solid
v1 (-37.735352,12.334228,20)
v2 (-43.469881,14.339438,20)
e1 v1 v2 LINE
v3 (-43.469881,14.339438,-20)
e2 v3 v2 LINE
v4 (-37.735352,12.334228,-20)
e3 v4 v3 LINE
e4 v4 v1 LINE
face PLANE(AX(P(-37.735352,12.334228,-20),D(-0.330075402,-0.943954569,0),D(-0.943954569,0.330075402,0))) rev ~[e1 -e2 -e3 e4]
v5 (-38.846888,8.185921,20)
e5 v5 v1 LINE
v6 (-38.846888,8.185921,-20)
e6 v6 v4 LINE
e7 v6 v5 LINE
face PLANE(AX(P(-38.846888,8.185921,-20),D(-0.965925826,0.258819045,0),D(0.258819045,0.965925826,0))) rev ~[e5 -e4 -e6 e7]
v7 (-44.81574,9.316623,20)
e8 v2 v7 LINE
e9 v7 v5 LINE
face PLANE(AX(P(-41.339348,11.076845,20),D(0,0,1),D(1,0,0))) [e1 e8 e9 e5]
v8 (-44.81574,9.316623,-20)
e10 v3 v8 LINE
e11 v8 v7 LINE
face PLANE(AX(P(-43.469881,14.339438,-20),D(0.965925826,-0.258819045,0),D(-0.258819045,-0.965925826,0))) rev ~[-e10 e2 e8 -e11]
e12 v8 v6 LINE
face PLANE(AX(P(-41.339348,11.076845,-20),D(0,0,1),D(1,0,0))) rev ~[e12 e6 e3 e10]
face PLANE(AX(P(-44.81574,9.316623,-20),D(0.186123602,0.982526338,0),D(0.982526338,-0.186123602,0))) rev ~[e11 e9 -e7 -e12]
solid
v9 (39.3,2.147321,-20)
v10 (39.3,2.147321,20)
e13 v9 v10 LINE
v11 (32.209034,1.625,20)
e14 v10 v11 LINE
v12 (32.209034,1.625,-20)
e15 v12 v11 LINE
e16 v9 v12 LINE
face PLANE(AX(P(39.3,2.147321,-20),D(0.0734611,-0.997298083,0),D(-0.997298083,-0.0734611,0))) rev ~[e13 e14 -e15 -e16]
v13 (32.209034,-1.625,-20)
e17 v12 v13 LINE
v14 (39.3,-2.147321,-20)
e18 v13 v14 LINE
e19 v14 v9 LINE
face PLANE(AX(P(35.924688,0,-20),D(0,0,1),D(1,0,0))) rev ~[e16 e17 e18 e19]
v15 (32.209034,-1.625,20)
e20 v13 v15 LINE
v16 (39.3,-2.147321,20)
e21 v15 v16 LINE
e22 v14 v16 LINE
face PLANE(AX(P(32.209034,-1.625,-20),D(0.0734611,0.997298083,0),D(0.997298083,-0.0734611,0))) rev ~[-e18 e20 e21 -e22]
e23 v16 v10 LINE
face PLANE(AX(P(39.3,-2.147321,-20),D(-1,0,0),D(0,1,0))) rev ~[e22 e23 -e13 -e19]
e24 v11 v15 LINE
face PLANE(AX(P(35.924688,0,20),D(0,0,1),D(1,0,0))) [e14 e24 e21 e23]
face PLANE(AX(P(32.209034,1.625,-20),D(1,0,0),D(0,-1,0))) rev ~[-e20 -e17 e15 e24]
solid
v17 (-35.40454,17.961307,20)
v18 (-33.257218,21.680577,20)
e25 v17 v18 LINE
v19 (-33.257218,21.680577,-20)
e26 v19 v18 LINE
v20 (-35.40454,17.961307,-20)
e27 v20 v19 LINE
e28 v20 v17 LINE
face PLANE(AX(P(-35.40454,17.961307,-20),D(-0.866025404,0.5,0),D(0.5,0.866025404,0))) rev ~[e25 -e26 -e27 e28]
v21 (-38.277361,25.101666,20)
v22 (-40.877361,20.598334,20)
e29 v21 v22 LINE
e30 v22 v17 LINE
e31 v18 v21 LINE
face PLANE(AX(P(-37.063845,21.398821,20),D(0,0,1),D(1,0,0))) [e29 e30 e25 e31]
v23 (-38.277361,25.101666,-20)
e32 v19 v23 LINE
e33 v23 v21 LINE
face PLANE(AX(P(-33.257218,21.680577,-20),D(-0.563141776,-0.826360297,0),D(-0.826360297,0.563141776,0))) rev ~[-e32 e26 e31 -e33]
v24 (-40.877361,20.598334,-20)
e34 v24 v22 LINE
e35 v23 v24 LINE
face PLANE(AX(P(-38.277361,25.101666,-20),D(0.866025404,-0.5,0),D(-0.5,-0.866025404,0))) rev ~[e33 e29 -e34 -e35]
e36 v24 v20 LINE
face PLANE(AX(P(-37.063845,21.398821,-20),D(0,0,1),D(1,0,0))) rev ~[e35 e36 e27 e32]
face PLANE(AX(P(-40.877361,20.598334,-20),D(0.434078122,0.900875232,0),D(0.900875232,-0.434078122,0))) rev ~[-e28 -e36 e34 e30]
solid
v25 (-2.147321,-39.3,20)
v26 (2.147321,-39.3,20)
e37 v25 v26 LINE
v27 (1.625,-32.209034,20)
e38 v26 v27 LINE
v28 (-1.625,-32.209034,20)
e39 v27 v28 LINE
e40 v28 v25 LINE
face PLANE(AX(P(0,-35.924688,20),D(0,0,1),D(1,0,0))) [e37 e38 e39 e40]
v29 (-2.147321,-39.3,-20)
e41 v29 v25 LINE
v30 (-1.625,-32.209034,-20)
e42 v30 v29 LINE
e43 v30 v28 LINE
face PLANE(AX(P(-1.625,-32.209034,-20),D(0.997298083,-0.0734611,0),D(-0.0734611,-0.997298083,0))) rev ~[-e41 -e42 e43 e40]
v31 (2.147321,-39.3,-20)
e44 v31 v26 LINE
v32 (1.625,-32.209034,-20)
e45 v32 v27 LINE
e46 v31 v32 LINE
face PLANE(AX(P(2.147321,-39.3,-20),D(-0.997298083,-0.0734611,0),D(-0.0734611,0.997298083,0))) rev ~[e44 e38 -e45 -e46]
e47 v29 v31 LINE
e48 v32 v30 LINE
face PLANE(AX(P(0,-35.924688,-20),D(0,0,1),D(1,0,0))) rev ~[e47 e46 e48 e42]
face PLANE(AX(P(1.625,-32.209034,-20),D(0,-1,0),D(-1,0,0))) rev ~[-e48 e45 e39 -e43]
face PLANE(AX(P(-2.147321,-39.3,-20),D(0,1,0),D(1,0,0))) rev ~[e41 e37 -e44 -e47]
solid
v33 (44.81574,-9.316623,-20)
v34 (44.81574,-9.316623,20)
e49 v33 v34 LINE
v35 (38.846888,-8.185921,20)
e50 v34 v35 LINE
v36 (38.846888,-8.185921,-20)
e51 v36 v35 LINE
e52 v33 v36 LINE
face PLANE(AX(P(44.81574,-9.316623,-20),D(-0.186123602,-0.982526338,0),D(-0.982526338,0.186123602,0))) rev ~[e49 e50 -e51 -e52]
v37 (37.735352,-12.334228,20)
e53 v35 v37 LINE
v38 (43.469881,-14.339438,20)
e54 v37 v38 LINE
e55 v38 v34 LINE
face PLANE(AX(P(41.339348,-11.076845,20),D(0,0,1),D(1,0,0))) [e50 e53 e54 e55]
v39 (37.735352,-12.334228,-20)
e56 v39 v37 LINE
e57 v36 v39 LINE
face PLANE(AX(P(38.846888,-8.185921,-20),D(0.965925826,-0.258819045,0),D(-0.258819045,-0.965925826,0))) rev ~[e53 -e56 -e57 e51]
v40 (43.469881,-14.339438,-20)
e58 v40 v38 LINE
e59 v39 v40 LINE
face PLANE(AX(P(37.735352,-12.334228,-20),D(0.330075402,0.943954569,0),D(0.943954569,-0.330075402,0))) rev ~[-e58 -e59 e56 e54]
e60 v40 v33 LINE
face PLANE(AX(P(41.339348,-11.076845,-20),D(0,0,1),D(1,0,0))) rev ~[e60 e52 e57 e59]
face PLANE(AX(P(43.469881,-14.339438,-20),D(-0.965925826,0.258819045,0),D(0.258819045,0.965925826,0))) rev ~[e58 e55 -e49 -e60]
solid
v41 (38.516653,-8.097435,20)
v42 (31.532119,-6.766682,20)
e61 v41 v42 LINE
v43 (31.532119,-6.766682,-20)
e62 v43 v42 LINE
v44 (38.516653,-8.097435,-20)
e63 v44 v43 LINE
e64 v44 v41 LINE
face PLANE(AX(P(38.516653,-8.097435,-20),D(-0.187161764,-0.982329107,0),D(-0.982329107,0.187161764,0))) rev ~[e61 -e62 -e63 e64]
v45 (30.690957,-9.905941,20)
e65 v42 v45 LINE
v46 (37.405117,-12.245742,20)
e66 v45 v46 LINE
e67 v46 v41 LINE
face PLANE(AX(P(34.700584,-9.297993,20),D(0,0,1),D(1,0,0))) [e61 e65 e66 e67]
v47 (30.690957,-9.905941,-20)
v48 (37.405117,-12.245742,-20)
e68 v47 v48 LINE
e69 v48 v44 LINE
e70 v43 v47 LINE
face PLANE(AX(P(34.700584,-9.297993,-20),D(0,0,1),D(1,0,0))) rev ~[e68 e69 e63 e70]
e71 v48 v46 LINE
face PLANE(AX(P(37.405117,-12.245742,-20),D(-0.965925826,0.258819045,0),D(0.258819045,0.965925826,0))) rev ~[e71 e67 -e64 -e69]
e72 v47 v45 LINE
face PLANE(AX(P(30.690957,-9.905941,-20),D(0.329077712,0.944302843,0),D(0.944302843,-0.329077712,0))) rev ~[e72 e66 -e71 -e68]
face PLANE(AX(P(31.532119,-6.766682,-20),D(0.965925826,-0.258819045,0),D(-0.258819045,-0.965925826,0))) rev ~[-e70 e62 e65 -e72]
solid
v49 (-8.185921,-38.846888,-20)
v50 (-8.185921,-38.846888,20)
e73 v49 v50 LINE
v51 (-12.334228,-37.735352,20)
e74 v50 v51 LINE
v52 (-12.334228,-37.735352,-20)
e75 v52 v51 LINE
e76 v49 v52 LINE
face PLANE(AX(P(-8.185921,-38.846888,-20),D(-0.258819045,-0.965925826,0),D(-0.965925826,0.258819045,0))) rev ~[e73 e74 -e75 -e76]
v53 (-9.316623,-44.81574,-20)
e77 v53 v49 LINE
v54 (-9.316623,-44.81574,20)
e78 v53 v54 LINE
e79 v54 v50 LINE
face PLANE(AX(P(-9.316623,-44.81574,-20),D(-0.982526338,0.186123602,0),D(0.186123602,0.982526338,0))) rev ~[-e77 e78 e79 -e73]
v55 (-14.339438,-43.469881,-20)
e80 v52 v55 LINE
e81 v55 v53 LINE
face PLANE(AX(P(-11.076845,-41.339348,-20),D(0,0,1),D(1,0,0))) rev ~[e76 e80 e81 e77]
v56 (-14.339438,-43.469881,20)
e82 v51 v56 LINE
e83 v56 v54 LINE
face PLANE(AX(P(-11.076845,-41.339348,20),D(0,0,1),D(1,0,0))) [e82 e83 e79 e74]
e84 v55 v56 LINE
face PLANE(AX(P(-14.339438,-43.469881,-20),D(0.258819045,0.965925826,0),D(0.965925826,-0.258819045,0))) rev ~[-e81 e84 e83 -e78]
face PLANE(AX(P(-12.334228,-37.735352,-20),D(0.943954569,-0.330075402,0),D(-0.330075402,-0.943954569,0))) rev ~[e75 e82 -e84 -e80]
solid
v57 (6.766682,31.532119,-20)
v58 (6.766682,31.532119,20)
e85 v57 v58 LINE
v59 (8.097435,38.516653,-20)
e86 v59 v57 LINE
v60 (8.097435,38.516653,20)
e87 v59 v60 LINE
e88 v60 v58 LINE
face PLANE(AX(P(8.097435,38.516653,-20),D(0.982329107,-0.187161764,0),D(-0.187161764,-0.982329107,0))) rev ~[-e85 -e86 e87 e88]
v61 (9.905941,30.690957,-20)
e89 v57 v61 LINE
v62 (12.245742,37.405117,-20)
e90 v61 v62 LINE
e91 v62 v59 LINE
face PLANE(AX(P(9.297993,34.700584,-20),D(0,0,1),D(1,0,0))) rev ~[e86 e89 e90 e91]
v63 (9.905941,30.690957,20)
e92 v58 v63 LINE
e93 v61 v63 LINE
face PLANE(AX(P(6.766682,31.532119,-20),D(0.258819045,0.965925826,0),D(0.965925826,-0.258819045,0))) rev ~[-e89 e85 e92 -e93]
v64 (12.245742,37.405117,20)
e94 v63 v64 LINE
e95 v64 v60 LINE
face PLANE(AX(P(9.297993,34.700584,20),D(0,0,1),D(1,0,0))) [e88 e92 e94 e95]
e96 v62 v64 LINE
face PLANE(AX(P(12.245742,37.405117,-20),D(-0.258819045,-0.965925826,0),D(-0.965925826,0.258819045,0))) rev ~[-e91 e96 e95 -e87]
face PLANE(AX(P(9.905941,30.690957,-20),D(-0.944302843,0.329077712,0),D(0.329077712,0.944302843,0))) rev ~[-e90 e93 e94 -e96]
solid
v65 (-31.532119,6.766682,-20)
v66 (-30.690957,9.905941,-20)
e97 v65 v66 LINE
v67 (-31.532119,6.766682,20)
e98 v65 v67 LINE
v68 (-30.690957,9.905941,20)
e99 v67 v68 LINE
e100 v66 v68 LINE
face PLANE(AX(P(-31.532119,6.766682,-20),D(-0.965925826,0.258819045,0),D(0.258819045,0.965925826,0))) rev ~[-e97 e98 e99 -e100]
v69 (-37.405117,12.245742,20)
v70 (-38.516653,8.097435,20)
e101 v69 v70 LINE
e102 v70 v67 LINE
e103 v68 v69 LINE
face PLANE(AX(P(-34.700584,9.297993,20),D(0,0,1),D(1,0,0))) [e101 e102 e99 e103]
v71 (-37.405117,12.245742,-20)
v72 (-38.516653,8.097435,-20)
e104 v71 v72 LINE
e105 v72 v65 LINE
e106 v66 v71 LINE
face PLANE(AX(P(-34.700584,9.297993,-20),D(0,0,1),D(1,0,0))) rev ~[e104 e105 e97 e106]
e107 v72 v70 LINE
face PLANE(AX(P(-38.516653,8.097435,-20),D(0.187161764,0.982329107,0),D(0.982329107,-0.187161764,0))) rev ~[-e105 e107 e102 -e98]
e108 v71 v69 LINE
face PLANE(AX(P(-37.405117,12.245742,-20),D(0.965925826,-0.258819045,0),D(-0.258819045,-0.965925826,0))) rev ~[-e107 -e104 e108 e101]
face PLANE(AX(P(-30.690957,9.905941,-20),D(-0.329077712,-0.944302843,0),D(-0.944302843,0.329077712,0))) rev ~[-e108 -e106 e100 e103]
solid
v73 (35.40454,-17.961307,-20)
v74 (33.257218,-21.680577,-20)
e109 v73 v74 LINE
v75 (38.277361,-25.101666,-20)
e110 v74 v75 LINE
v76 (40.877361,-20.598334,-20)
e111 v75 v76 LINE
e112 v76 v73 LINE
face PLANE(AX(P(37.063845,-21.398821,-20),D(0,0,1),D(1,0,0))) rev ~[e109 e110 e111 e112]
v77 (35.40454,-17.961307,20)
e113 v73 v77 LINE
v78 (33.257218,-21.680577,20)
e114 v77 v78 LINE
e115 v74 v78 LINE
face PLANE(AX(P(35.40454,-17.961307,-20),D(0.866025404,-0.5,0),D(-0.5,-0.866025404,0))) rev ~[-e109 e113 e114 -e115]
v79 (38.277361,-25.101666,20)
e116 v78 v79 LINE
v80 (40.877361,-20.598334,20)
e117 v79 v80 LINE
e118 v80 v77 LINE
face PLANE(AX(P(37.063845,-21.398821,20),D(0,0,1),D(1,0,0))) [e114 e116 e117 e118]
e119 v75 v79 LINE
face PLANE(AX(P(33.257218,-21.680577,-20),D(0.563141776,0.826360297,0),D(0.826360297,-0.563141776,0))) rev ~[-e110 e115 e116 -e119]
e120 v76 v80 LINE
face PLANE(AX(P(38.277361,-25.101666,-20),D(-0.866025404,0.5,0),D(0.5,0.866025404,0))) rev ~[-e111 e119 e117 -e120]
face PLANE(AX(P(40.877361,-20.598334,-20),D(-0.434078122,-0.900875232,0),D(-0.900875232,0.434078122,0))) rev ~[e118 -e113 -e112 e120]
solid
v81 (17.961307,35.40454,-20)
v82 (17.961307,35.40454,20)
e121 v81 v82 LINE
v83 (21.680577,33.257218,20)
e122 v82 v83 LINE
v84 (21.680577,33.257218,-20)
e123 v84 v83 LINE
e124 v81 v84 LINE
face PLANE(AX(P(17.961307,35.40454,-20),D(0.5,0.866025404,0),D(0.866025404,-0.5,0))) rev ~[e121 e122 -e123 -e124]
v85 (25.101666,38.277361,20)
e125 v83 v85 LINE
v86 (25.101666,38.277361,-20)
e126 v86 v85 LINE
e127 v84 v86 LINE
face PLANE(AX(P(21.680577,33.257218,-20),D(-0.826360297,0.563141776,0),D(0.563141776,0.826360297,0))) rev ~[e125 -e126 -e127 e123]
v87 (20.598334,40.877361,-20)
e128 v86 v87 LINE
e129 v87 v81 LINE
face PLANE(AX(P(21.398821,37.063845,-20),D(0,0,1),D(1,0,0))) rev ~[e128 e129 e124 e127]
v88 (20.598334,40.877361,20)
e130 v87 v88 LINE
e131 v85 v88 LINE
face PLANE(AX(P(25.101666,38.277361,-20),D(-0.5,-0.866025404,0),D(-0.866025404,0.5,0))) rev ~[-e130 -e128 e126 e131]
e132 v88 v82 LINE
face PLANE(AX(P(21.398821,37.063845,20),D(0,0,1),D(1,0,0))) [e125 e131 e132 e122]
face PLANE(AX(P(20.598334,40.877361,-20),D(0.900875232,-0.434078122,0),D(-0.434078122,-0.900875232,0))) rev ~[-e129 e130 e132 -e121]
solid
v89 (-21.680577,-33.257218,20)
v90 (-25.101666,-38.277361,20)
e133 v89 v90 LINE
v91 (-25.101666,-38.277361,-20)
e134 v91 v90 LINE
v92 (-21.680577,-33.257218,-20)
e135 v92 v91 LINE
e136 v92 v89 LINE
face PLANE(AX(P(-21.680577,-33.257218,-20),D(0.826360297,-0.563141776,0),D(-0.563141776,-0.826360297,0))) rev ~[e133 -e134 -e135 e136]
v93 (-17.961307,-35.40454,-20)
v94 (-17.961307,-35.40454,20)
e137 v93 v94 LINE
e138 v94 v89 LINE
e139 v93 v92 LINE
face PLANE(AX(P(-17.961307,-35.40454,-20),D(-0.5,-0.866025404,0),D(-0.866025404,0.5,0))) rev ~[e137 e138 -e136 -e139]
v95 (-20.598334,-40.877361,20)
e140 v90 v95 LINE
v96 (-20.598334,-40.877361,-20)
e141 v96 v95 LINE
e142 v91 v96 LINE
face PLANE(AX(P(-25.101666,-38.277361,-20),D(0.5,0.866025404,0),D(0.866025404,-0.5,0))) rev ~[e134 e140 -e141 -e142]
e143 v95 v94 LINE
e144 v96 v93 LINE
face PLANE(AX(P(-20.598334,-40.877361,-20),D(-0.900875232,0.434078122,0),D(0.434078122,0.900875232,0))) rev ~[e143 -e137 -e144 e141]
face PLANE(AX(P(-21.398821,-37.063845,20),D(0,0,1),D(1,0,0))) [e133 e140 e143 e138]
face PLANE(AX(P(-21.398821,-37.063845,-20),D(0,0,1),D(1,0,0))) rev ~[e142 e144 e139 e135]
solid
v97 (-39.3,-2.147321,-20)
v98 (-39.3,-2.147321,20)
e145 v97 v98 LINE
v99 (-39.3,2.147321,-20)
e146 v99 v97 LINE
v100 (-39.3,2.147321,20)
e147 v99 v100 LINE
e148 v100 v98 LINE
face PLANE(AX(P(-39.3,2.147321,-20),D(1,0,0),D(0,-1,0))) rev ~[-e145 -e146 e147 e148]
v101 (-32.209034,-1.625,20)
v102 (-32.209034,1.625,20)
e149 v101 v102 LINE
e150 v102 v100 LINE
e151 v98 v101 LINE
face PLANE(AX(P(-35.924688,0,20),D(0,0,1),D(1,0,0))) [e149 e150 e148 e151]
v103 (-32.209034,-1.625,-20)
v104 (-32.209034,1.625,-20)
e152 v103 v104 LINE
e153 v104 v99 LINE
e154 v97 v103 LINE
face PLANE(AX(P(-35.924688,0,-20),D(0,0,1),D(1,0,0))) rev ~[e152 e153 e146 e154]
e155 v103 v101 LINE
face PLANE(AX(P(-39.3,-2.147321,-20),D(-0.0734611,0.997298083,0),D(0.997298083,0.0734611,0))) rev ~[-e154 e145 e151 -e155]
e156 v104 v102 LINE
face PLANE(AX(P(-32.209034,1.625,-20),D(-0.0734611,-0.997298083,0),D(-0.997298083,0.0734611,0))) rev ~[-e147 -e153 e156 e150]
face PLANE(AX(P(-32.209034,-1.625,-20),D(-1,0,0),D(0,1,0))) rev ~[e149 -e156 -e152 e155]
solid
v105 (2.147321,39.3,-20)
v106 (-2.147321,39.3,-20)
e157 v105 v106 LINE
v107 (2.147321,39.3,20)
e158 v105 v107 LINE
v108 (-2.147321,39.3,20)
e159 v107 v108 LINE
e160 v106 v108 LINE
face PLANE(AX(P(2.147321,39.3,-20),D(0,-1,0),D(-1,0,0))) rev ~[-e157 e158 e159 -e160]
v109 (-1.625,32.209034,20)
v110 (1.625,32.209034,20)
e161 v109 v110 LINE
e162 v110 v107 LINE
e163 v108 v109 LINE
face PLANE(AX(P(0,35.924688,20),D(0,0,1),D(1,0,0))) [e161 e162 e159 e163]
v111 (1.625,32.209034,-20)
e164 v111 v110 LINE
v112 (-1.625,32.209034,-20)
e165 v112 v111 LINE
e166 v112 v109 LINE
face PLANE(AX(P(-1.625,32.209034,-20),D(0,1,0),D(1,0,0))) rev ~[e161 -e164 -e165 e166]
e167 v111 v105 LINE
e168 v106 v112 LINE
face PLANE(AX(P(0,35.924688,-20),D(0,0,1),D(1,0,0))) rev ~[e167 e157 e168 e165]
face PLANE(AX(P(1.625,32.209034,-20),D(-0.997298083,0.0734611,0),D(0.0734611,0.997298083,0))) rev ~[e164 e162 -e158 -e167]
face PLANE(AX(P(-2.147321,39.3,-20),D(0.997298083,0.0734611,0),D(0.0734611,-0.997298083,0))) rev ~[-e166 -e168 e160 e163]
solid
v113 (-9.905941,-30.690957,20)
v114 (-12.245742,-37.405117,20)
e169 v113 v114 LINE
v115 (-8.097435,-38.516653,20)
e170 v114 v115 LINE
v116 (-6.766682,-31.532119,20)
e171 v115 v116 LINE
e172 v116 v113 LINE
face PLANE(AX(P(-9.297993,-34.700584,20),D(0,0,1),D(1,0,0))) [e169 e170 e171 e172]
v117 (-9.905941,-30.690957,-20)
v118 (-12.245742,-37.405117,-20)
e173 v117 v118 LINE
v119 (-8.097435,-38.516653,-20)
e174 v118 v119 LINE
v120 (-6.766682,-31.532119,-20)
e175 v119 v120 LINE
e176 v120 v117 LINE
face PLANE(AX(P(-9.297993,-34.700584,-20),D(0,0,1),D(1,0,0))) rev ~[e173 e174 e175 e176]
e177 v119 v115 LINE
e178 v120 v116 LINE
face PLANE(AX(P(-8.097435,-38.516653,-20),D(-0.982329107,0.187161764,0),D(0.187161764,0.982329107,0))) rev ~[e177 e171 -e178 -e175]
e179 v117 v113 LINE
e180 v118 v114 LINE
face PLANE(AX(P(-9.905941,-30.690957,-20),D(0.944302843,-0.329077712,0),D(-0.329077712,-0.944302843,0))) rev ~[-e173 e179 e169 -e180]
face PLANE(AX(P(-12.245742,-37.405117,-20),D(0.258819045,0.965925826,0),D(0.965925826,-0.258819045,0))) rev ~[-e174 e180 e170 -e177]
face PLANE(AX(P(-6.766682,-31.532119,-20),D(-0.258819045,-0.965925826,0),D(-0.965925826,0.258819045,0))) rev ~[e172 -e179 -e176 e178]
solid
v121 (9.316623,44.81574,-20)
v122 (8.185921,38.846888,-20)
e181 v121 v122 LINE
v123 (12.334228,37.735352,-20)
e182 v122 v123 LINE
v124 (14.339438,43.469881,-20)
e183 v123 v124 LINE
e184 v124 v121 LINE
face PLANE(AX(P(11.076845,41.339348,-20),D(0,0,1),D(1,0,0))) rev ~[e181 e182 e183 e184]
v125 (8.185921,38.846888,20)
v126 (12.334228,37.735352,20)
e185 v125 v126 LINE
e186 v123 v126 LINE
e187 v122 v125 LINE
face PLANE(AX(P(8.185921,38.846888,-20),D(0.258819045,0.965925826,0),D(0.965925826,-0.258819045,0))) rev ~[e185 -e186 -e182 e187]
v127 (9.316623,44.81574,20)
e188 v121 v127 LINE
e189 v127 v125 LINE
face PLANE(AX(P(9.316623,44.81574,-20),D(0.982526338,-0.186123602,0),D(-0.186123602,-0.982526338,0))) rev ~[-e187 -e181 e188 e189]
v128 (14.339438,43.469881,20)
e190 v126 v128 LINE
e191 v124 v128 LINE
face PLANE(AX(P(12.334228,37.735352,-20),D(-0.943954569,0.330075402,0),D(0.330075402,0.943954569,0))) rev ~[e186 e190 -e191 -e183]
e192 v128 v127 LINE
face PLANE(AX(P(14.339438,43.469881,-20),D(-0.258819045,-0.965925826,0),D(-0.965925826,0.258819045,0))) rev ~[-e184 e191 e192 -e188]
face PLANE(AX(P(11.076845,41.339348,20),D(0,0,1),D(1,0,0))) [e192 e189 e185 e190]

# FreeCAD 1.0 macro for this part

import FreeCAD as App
import Part
import Sketcher

V = App.Vector
Q = App.Units.Quantity

doc = App.newDocument("Part")
body = doc.addObject("PartDesign::Body", "Body")

# Sketch on XY plane
sketch1 = doc.addObject("Sketcher::SketchObject", "Sketch")
body.addObject(sketch1)
sketch1.AttachmentSupport = (doc.XY_Plane, [""])
sketch1.MapMode = "FlatFace"
sketch1.AttachmentOffset = App.Placement(V(0, 0, -20), App.Rotation())
sketch1.addGeometry([
    Part.LineSegment(V(32.2, -1.6, 0), V(39.3, -2.1, 0)),
    Part.LineSegment(V(39.3, -2.1, 0), V(39.3, 2.1, 0)),
    Part.LineSegment(V(39.3, 2.1, 0), V(32.2, 1.6, 0)),
    Part.LineSegment(V(32.2, 1.6, 0), V(32.2, -1.6, 0)),
], False)
sketch1.addConstraint([
    Sketcher.Constraint("Coincident", 0, 2, 1, 1),
    Sketcher.Constraint("Coincident", 1, 2, 2, 1),
    Sketcher.Constraint("Coincident", 2, 2, 3, 1),
    Sketcher.Constraint("Coincident", 3, 2, 0, 1),
    Sketcher.Constraint("Vertical", 1),
    Sketcher.Constraint("Vertical", 3),
    Sketcher.Constraint("Equal", 0, 2),
    Sketcher.Constraint("DistanceY", 3, 2, 3, 1, Q("3.25 mm")),
    Sketcher.Constraint("DistanceX", -1, 1, 0, 2, Q("39.3 mm")),
    Sketcher.Constraint("DistanceY", -1, 1, 2, 2, Q("1.625 mm")),
    Sketcher.Constraint("DistanceY", 1, 1, 1, 2, Q("4.294643 mm")),
    Sketcher.Constraint("Distance", 0, Q("7.110177 mm")),
])
pad1 = doc.addObject("PartDesign::Pad", "Pad")
body.addObject(pad1)
pad1.Profile = sketch1
pad1.Length = 40
body2 = doc.addObject("PartDesign::Body", "Body001")

# Sketch on XY plane
sketch2 = doc.addObject("Sketcher::SketchObject", "Sketch001")
body2.addObject(sketch2)
sketch2.AttachmentSupport = (doc.getObject("XY_Plane001"), [""])
sketch2.MapMode = "FlatFace"
sketch2.AttachmentOffset = App.Placement(V(0, 0, -20), App.Rotation())
sketch2.addGeometry([
    Part.LineSegment(V(21.7, 33.3, 0), V(25.1, 38.3, 0)),
    Part.LineSegment(V(25.1, 38.3, 0), V(20.6, 40.9, 0)),
    Part.LineSegment(V(20.6, 40.9, 0), V(18, 35.4, 0)),
    Part.LineSegment(V(18, 35.4, 0), V(21.7, 33.3, 0)),
], False)
sketch2.addConstraint([
    Sketcher.Constraint("Coincident", 0, 2, 1, 1),
    Sketcher.Constraint("Coincident", 1, 2, 2, 1),
    Sketcher.Constraint("Coincident", 2, 2, 3, 1),
    Sketcher.Constraint("Coincident", 3, 2, 0, 1),
    Sketcher.Constraint("Parallel", 1, 3),
    Sketcher.Constraint("Equal", 0, 2),
    Sketcher.Constraint("Angle", 1, Q("150 deg")),
    Sketcher.Constraint("Distance", 1, Q("5.2 mm")),
    Sketcher.Constraint("DistanceY", -1, 1, 0, 2, Q("38.277361 mm")),
    Sketcher.Constraint("DistanceY", -1, 1, 2, 2, Q("35.40454 mm")),
    Sketcher.Constraint("DistanceY", -1, 1, 3, 2, Q("33.257218 mm")),
    Sketcher.Constraint("DistanceX", -1, 1, 0, 2, Q("25.101666 mm")),
])
pad2 = doc.addObject("PartDesign::Pad", "Pad001")
body2.addObject(pad2)
pad2.Profile = sketch2
pad2.Length = 40
body3 = doc.addObject("PartDesign::Body", "Body002")

# Sketch on XY plane
sketch3 = doc.addObject("Sketcher::SketchObject", "Sketch002")
body3.addObject(sketch3)
sketch3.AttachmentSupport = (doc.getObject("XY_Plane002"), [""])
sketch3.MapMode = "FlatFace"
sketch3.AttachmentOffset = App.Placement(V(0, 0, -20), App.Rotation())
sketch3.addGeometry([
    Part.LineSegment(V(9.9, 30.7, 0), V(12.2, 37.4, 0)),
    Part.LineSegment(V(12.2, 37.4, 0), V(8.1, 38.5, 0)),
    Part.LineSegment(V(8.1, 38.5, 0), V(6.8, 31.5, 0)),
    Part.LineSegment(V(6.8, 31.5, 0), V(9.9, 30.7, 0)),
], False)
sketch3.addConstraint([
    Sketcher.Constraint("Coincident", 0, 2, 1, 1),
    Sketcher.Constraint("Coincident", 1, 2, 2, 1),
    Sketcher.Constraint("Coincident", 2, 2, 3, 1),
    Sketcher.Constraint("Coincident", 3, 2, 0, 1),
    Sketcher.Constraint("Parallel", 1, 3),
    Sketcher.Constraint("Equal", 0, 2),
    Sketcher.Constraint("Angle", 1, Q("165 deg")),
    Sketcher.Constraint("Distance", 3, Q("3.25 mm")),
    Sketcher.Constraint("DistanceY", 2, 2, 0, 2, Q("5.872999 mm")),
    Sketcher.Constraint("DistanceX", 3, 2, 0, 2, Q("2.339801 mm")),
    Sketcher.Constraint("DistanceX", -1, 1, 0, 2, Q("12.245742 mm")),
    Sketcher.Constraint("DistanceY", -1, 1, 2, 2, Q("31.532119 mm")),
])
pad3 = doc.addObject("PartDesign::Pad", "Pad002")
body3.addObject(pad3)
pad3.Profile = sketch3
pad3.Length = 40
body4 = doc.addObject("PartDesign::Body", "Body003")

# Sketch on XY plane
sketch4 = doc.addObject("Sketcher::SketchObject", "Sketch003")
body4.addObject(sketch4)
sketch4.AttachmentSupport = (doc.getObject("XY_Plane003"), [""])
sketch4.MapMode = "FlatFace"
sketch4.AttachmentOffset = App.Placement(V(0, 0, -20), App.Rotation())
sketch4.addGeometry([
    Part.LineSegment(V(12.3, 37.7, 0), V(14.3, 43.5, 0)),
    Part.LineSegment(V(14.3, 43.5, 0), V(9.3, 44.8, 0)),
    Part.LineSegment(V(9.3, 44.8, 0), V(8.2, 38.8, 0)),
    Part.LineSegment(V(8.2, 38.8, 0), V(12.3, 37.7, 0)),
], False)
sketch4.addConstraint([
    Sketcher.Constraint("Coincident", 0, 2, 1, 1),
    Sketcher.Constraint("Coincident", 1, 2, 2, 1),
    Sketcher.Constraint("Coincident", 2, 2, 3, 1),
    Sketcher.Constraint("Coincident", 3, 2, 0, 1),
    Sketcher.Constraint("Parallel", 1, 3),
    Sketcher.Constraint("Equal", 0, 2),
    Sketcher.Constraint("Angle", 1, Q("165 deg")),
    Sketcher.Constraint("Distance", 1, Q("5.2 mm")),
    Sketcher.Constraint("DistanceX", 2, 2, 1, 2, Q("1.130702 mm")),
    Sketcher.Constraint("DistanceY", -1, 1, 0, 2, Q("43.469881 mm")),
    Sketcher.Constraint("DistanceX", -1, 1, 2, 2, Q("8.185921 mm")),
    Sketcher.Constraint("DistanceX", 3, 2, 0, 2, Q("2.00521 mm")),
])
pad4 = doc.addObject("PartDesign::Pad", "Pad003")
body4.addObject(pad4)
pad4.Profile = sketch4
pad4.Length = 40
body5 = doc.addObject("PartDesign::Body", "Body004")

# Sketch on XY plane
sketch5 = doc.addObject("Sketcher::SketchObject", "Sketch004")
body5.addObject(sketch5)
sketch5.AttachmentSupport = (doc.getObject("XY_Plane004"), [""])
sketch5.MapMode = "FlatFace"
sketch5.AttachmentOffset = App.Placement(V(0, 0, -20), App.Rotation())
sketch5.addGeometry([
    Part.LineSegment(V(1.6, 32.2, 0), V(2.1, 39.3, 0)),
    Part.LineSegment(V(2.1, 39.3, 0), V(-2.1, 39.3, 0)),
    Part.LineSegment(V(-2.1, 39.3, 0), V(-1.6, 32.2, 0)),
    Part.LineSegment(V(-1.6, 32.2, 0), V(1.6, 32.2, 0)),
], False)
sketch5.addConstraint([
    Sketcher.Constraint("Coincident", 0, 2, 1, 1),
    Sketcher.Constraint("Coincident", 1, 2, 2, 1),
    Sketcher.Constraint("Coincident", 2, 2, 3, 1),
    Sketcher.Constraint("Coincident", 3, 2, 0, 1),
    Sketcher.Constraint("Horizontal", 1),
    Sketcher.Constraint("Horizontal", 3),
    Sketcher.Constraint("Equal", 0, 2),
    Sketcher.Constraint("DistanceX", 3, 1, 3, 2, Q("3.25 mm")),
    Sketcher.Constraint("DistanceY", -1, 1, 0, 2, Q("39.3 mm")),
    Sketcher.Constraint("DistanceX", 2, 2, -1, 1, Q("1.625 mm")),
    Sketcher.Constraint("DistanceX", 1, 2, 1, 1, Q("4.294643 mm")),
    Sketcher.Constraint("Distance", 0, Q("7.110177 mm")),
])
pad5 = doc.addObject("PartDesign::Pad", "Pad004")
body5.addObject(pad5)
pad5.Profile = sketch5
pad5.Length = 40
body6 = doc.addObject("PartDesign::Body", "Body005")

# Sketch on XY plane
sketch6 = doc.addObject("Sketcher::SketchObject", "Sketch005")
body6.addObject(sketch6)
sketch6.AttachmentSupport = (doc.getObject("XY_Plane005"), [""])
sketch6.MapMode = "FlatFace"
sketch6.AttachmentOffset = App.Placement(V(0, 0, -20), App.Rotation())
sketch6.addGeometry([
    Part.LineSegment(V(-33.3, 21.7, 0), V(-38.3, 25.1, 0)),
    Part.LineSegment(V(-38.3, 25.1, 0), V(-40.9, 20.6, 0)),
    Part.LineSegment(V(-40.9, 20.6, 0), V(-35.4, 18, 0)),
    Part.LineSegment(V(-35.4, 18, 0), V(-33.3, 21.7, 0)),
], False)
sketch6.addConstraint([
    Sketcher.Constraint("Coincident", 0, 2, 1, 1),
    Sketcher.Constraint("Coincident", 1, 2, 2, 1),
    Sketcher.Constraint("Coincident", 2, 2, 3, 1),
    Sketcher.Constraint("Coincident", 3, 2, 0, 1),
    Sketcher.Constraint("Parallel", 1, 3),
    Sketcher.Constraint("Equal", 0, 2),
    Sketcher.Constraint("Angle", 1, Q("-120 deg")),
    Sketcher.Constraint("Distance", 1, Q("5.2 mm")),
    Sketcher.Constraint("DistanceX", 0, 2, -1, 1, Q("38.277361 mm")),
    Sketcher.Constraint("DistanceX", 2, 2, -1, 1, Q("35.40454 mm")),
    Sketcher.Constraint("DistanceX", 3, 2, -1, 1, Q("33.257218 mm")),
    Sketcher.Constraint("DistanceY", -1, 1, 0, 2, Q("25.101666 mm")),
])
pad6 = doc.addObject("PartDesign::Pad", "Pad005")
body6.addObject(pad6)
pad6.Profile = sketch6
pad6.Length = 40
body7 = doc.addObject("PartDesign::Body", "Body006")

# Sketch on XY plane
sketch7 = doc.addObject("Sketcher::SketchObject", "Sketch006")
body7.addObject(sketch7)
sketch7.AttachmentSupport = (doc.getObject("XY_Plane006"), [""])
sketch7.MapMode = "FlatFace"
sketch7.AttachmentOffset = App.Placement(V(0, 0, -20), App.Rotation())
sketch7.addGeometry([
    Part.LineSegment(V(-30.7, 9.9, 0), V(-37.4, 12.2, 0)),
    Part.LineSegment(V(-37.4, 12.2, 0), V(-38.5, 8.1, 0)),
    Part.LineSegment(V(-38.5, 8.1, 0), V(-31.5, 6.8, 0)),
    Part.LineSegment(V(-31.5, 6.8, 0), V(-30.7, 9.9, 0)),
], False)
sketch7.addConstraint([
    Sketcher.Constraint("Coincident", 0, 2, 1, 1),
    Sketcher.Constraint("Coincident", 1, 2, 2, 1),
    Sketcher.Constraint("Coincident", 2, 2, 3, 1),
    Sketcher.Constraint("Coincident", 3, 2, 0, 1),
    Sketcher.Constraint("Parallel", 1, 3),
    Sketcher.Constraint("Equal", 0, 2),
    Sketcher.Constraint("Angle", 1, Q("-105 deg")),
    Sketcher.Constraint("Distance", 3, Q("3.25 mm")),
    Sketcher.Constraint("DistanceX", 0, 2, 2, 2, Q("5.872999 mm")),
    Sketcher.Constraint("DistanceY", 3, 2, 0, 2, Q("2.339801 mm")),
    Sketcher.Constraint("DistanceY", -1, 1, 0, 2, Q("12.245742 mm")),
    Sketcher.Constraint("DistanceX", 2, 2, -1, 1, Q("31.532119 mm")),
])
pad7 = doc.addObject("PartDesign::Pad", "Pad006")
body7.addObject(pad7)
pad7.Profile = sketch7
pad7.Length = 40
body8 = doc.addObject("PartDesign::Body", "Body007")

# Sketch on XY plane
sketch8 = doc.addObject("Sketcher::SketchObject", "Sketch007")
body8.addObject(sketch8)
sketch8.AttachmentSupport = (doc.getObject("XY_Plane007"), [""])
sketch8.MapMode = "FlatFace"
sketch8.AttachmentOffset = App.Placement(V(0, 0, -20), App.Rotation())
sketch8.addGeometry([
    Part.LineSegment(V(-37.7, 12.3, 0), V(-43.5, 14.3, 0)),
    Part.LineSegment(V(-43.5, 14.3, 0), V(-44.8, 9.3, 0)),
    Part.LineSegment(V(-44.8, 9.3, 0), V(-38.8, 8.2, 0)),
    Part.LineSegment(V(-38.8, 8.2, 0), V(-37.7, 12.3, 0)),
], False)
sketch8.addConstraint([
    Sketcher.Constraint("Coincident", 0, 2, 1, 1),
    Sketcher.Constraint("Coincident", 1, 2, 2, 1),
    Sketcher.Constraint("Coincident", 2, 2, 3, 1),
    Sketcher.Constraint("Coincident", 3, 2, 0, 1),
    Sketcher.Constraint("Parallel", 1, 3),
    Sketcher.Constraint("Equal", 0, 2),
    Sketcher.Constraint("Angle", 1, Q("-105 deg")),
    Sketcher.Constraint("Distance", 1, Q("5.2 mm")),
    Sketcher.Constraint("DistanceY", 2, 2, 1, 2, Q("1.130702 mm")),
    Sketcher.Constraint("DistanceX", 0, 2, -1, 1, Q("43.469881 mm")),
    Sketcher.Constraint("DistanceY", -1, 1, 2, 2, Q("8.185921 mm")),
    Sketcher.Constraint("DistanceX", 0, 2, 3, 2, Q("5.734528 mm")),
])
pad8 = doc.addObject("PartDesign::Pad", "Pad007")
body8.addObject(pad8)
pad8.Profile = sketch8
pad8.Length = 40
body9 = doc.addObject("PartDesign::Body", "Body008")

# Sketch on XY plane
sketch9 = doc.addObject("Sketcher::SketchObject", "Sketch008")
body9.addObject(sketch9)
sketch9.AttachmentSupport = (doc.getObject("XY_Plane008"), [""])
sketch9.MapMode = "FlatFace"
sketch9.AttachmentOffset = App.Placement(V(0, 0, -20), App.Rotation())
sketch9.addGeometry([
    Part.LineSegment(V(-32.2, 1.6, 0), V(-39.3, 2.1, 0)),
    Part.LineSegment(V(-39.3, 2.1, 0), V(-39.3, -2.1, 0)),
    Part.LineSegment(V(-39.3, -2.1, 0), V(-32.2, -1.6, 0)),
    Part.LineSegment(V(-32.2, -1.6, 0), V(-32.2, 1.6, 0)),
], False)
sketch9.addConstraint([
    Sketcher.Constraint("Coincident", 0, 2, 1, 1),
    Sketcher.Constraint("Coincident", 1, 2, 2, 1),
    Sketcher.Constraint("Coincident", 2, 2, 3, 1),
    Sketcher.Constraint("Coincident", 3, 2, 0, 1),
    Sketcher.Constraint("Vertical", 1),
    Sketcher.Constraint("Vertical", 3),
    Sketcher.Constraint("Equal", 0, 2),
    Sketcher.Constraint("DistanceY", 3, 1, 3, 2, Q("3.25 mm")),
    Sketcher.Constraint("DistanceX", 0, 2, -1, 1, Q("39.3 mm")),
    Sketcher.Constraint("DistanceY", 2, 2, -1, 1, Q("1.625 mm")),
    Sketcher.Constraint("DistanceY", 1, 2, 1, 1, Q("4.294643 mm")),
    Sketcher.Constraint("Distance", 0, Q("7.110177 mm")),
])
pad9 = doc.addObject("PartDesign::Pad", "Pad008")
body9.addObject(pad9)
pad9.Profile = sketch9
pad9.Length = 40
body10 = doc.addObject("PartDesign::Body", "Body009")

# Sketch on XY plane
sketch10 = doc.addObject("Sketcher::SketchObject", "Sketch009")
body10.addObject(sketch10)
sketch10.AttachmentSupport = (doc.getObject("XY_Plane009"), [""])
sketch10.MapMode = "FlatFace"
sketch10.AttachmentOffset = App.Placement(V(0, 0, -20), App.Rotation())
sketch10.addGeometry([
    Part.LineSegment(V(-21.7, -33.3, 0), V(-25.1, -38.3, 0)),
    Part.LineSegment(V(-25.1, -38.3, 0), V(-20.6, -40.9, 0)),
    Part.LineSegment(V(-20.6, -40.9, 0), V(-18, -35.4, 0)),
    Part.LineSegment(V(-18, -35.4, 0), V(-21.7, -33.3, 0)),
], False)
sketch10.addConstraint([
    Sketcher.Constraint("Coincident", 0, 2, 1, 1),
    Sketcher.Constraint("Coincident", 1, 2, 2, 1),
    Sketcher.Constraint("Coincident", 2, 2, 3, 1),
    Sketcher.Constraint("Coincident", 3, 2, 0, 1),
    Sketcher.Constraint("Parallel", 1, 3),
    Sketcher.Constraint("Equal", 0, 2),
    Sketcher.Constraint("Angle", 1, Q("-30 deg")),
    Sketcher.Constraint("Distance", 1, Q("5.2 mm")),
    Sketcher.Constraint("DistanceY", 0, 2, -1, 1, Q("38.277361 mm")),
    Sketcher.Constraint("DistanceY", 2, 2, -1, 1, Q("35.40454 mm")),
    Sketcher.Constraint("DistanceY", 3, 2, -1, 1, Q("33.257218 mm")),
    Sketcher.Constraint("DistanceX", 0, 2, -1, 1, Q("25.101666 mm")),
])
pad10 = doc.addObject("PartDesign::Pad", "Pad009")
body10.addObject(pad10)
pad10.Profile = sketch10
pad10.Length = 40
body11 = doc.addObject("PartDesign::Body", "Body010")

# Sketch on XY plane
sketch11 = doc.addObject("Sketcher::SketchObject", "Sketch010")
body11.addObject(sketch11)
sketch11.AttachmentSupport = (doc.getObject("XY_Plane010"), [""])
sketch11.MapMode = "FlatFace"
sketch11.AttachmentOffset = App.Placement(V(0, 0, -20), App.Rotation())
sketch11.addGeometry([
    Part.LineSegment(V(-9.9, -30.7, 0), V(-12.2, -37.4, 0)),
    Part.LineSegment(V(-12.2, -37.4, 0), V(-8.1, -38.5, 0)),
    Part.LineSegment(V(-8.1, -38.5, 0), V(-6.8, -31.5, 0)),
    Part.LineSegment(V(-6.8, -31.5, 0), V(-9.9, -30.7, 0)),
], False)
sketch11.addConstraint([
    Sketcher.Constraint("Coincident", 0, 2, 1, 1),
    Sketcher.Constraint("Coincident", 1, 2, 2, 1),
    Sketcher.Constraint("Coincident", 2, 2, 3, 1),
    Sketcher.Constraint("Coincident", 3, 2, 0, 1),
    Sketcher.Constraint("Parallel", 1, 3),
    Sketcher.Constraint("Equal", 0, 2),
    Sketcher.Constraint("Angle", 1, Q("-15 deg")),
    Sketcher.Constraint("Distance", 3, Q("3.25 mm")),
    Sketcher.Constraint("DistanceY", 0, 2, 2, 2, Q("5.872999 mm")),
    Sketcher.Constraint("DistanceX", 0, 2, 3, 2, Q("2.339801 mm")),
    Sketcher.Constraint("DistanceX", 0, 2, -1, 1, Q("12.245742 mm")),
    Sketcher.Constraint("DistanceY", 2, 2, -1, 1, Q("31.532119 mm")),
])
pad11 = doc.addObject("PartDesign::Pad", "Pad010")
body11.addObject(pad11)
pad11.Profile = sketch11
pad11.Length = 40
body12 = doc.addObject("PartDesign::Body", "Body011")

# Sketch on XY plane
sketch12 = doc.addObject("Sketcher::SketchObject", "Sketch011")
body12.addObject(sketch12)
sketch12.AttachmentSupport = (doc.getObject("XY_Plane011"), [""])
sketch12.MapMode = "FlatFace"
sketch12.AttachmentOffset = App.Placement(V(0, 0, -20), App.Rotation())
sketch12.addGeometry([
    Part.LineSegment(V(-12.3, -37.7, 0), V(-14.3, -43.5, 0)),
    Part.LineSegment(V(-14.3, -43.5, 0), V(-9.3, -44.8, 0)),
    Part.LineSegment(V(-9.3, -44.8, 0), V(-8.2, -38.8, 0)),
    Part.LineSegment(V(-8.2, -38.8, 0), V(-12.3, -37.7, 0)),
], False)
sketch12.addConstraint([
    Sketcher.Constraint("Coincident", 0, 2, 1, 1),
    Sketcher.Constraint("Coincident", 1, 2, 2, 1),
    Sketcher.Constraint("Coincident", 2, 2, 3, 1),
    Sketcher.Constraint("Coincident", 3, 2, 0, 1),
    Sketcher.Constraint("Parallel", 1, 3),
    Sketcher.Constraint("Equal", 0, 2),
    Sketcher.Constraint("Angle", 1, Q("-15 deg")),
    Sketcher.Constraint("Distance", 1, Q("5.2 mm")),
    Sketcher.Constraint("DistanceX", 1, 2, 2, 2, Q("1.130702 mm")),
    Sketcher.Constraint("DistanceY", 0, 2, -1, 1, Q("43.469881 mm")),
    Sketcher.Constraint("DistanceX", 2, 2, -1, 1, Q("8.185921 mm")),
    Sketcher.Constraint("DistanceX", 0, 2, 3, 2, Q("2.00521 mm")),
])
pad12 = doc.addObject("PartDesign::Pad", "Pad011")
body12.addObject(pad12)
pad12.Profile = sketch12
pad12.Length = 40
body13 = doc.addObject("PartDesign::Body", "Body012")

# Sketch on XY plane
sketch13 = doc.addObject("Sketcher::SketchObject", "Sketch012")
body13.addObject(sketch13)
sketch13.AttachmentSupport = (doc.getObject("XY_Plane012"), [""])
sketch13.MapMode = "FlatFace"
sketch13.AttachmentOffset = App.Placement(V(0, 0, -20), App.Rotation())
sketch13.addGeometry([
    Part.LineSegment(V(-1.6, -32.2, 0), V(-2.1, -39.3, 0)),
    Part.LineSegment(V(-2.1, -39.3, 0), V(2.1, -39.3, 0)),
    Part.LineSegment(V(2.1, -39.3, 0), V(1.6, -32.2, 0)),
    Part.LineSegment(V(1.6, -32.2, 0), V(-1.6, -32.2, 0)),
], False)
sketch13.addConstraint([
    Sketcher.Constraint("Coincident", 0, 2, 1, 1),
    Sketcher.Constraint("Coincident", 1, 2, 2, 1),
    Sketcher.Constraint("Coincident", 2, 2, 3, 1),
    Sketcher.Constraint("Coincident", 3, 2, 0, 1),
    Sketcher.Constraint("Horizontal", 1),
    Sketcher.Constraint("Horizontal", 3),
    Sketcher.Constraint("Equal", 0, 2),
    Sketcher.Constraint("DistanceX", 3, 2, 3, 1, Q("3.25 mm")),
    Sketcher.Constraint("DistanceY", 0, 2, -1, 1, Q("39.3 mm")),
    Sketcher.Constraint("DistanceX", -1, 1, 2, 2, Q("1.625 mm")),
    Sketcher.Constraint("DistanceX", 1, 1, 1, 2, Q("4.294643 mm")),
    Sketcher.Constraint("Distance", 0, Q("7.110177 mm")),
])
pad13 = doc.addObject("PartDesign::Pad", "Pad012")
body13.addObject(pad13)
pad13.Profile = sketch13
pad13.Length = 40
body14 = doc.addObject("PartDesign::Body", "Body013")

# Sketch on XY plane
sketch14 = doc.addObject("Sketcher::SketchObject", "Sketch013")
body14.addObject(sketch14)
sketch14.AttachmentSupport = (doc.getObject("XY_Plane013"), [""])
sketch14.MapMode = "FlatFace"
sketch14.AttachmentOffset = App.Placement(V(0, 0, -20), App.Rotation())
sketch14.addGeometry([
    Part.LineSegment(V(33.3, -21.7, 0), V(38.3, -25.1, 0)),
    Part.LineSegment(V(38.3, -25.1, 0), V(40.9, -20.6, 0)),
    Part.LineSegment(V(40.9, -20.6, 0), V(35.4, -18, 0)),
    Part.LineSegment(V(35.4, -18, 0), V(33.3, -21.7, 0)),
], False)
sketch14.addConstraint([
    Sketcher.Constraint("Coincident", 0, 2, 1, 1),
    Sketcher.Constraint("Coincident", 1, 2, 2, 1),
    Sketcher.Constraint("Coincident", 2, 2, 3, 1),
    Sketcher.Constraint("Coincident", 3, 2, 0, 1),
    Sketcher.Constraint("Parallel", 1, 3),
    Sketcher.Constraint("Equal", 0, 2),
    Sketcher.Constraint("Angle", 1, Q("60 deg")),
    Sketcher.Constraint("Distance", 1, Q("5.2 mm")),
    Sketcher.Constraint("DistanceX", -1, 1, 0, 2, Q("38.277361 mm")),
    Sketcher.Constraint("DistanceX", -1, 1, 2, 2, Q("35.40454 mm")),
    Sketcher.Constraint("DistanceX", -1, 1, 3, 2, Q("33.257218 mm")),
    Sketcher.Constraint("DistanceY", 0, 2, -1, 1, Q("25.101666 mm")),
])
pad14 = doc.addObject("PartDesign::Pad", "Pad013")
body14.addObject(pad14)
pad14.Profile = sketch14
pad14.Length = 40
body15 = doc.addObject("PartDesign::Body", "Body014")

# Sketch on XY plane
sketch15 = doc.addObject("Sketcher::SketchObject", "Sketch014")
body15.addObject(sketch15)
sketch15.AttachmentSupport = (doc.getObject("XY_Plane014"), [""])
sketch15.MapMode = "FlatFace"
sketch15.AttachmentOffset = App.Placement(V(0, 0, -20), App.Rotation())
sketch15.addGeometry([
    Part.LineSegment(V(30.7, -9.9, 0), V(37.4, -12.2, 0)),
    Part.LineSegment(V(37.4, -12.2, 0), V(38.5, -8.1, 0)),
    Part.LineSegment(V(38.5, -8.1, 0), V(31.5, -6.8, 0)),
    Part.LineSegment(V(31.5, -6.8, 0), V(30.7, -9.9, 0)),
], False)
sketch15.addConstraint([
    Sketcher.Constraint("Coincident", 0, 2, 1, 1),
    Sketcher.Constraint("Coincident", 1, 2, 2, 1),
    Sketcher.Constraint("Coincident", 2, 2, 3, 1),
    Sketcher.Constraint("Coincident", 3, 2, 0, 1),
    Sketcher.Constraint("Parallel", 1, 3),
    Sketcher.Constraint("Equal", 0, 2),
    Sketcher.Constraint("Angle", 1, Q("75 deg")),
    Sketcher.Constraint("Distance", 3, Q("3.25 mm")),
    Sketcher.Constraint("DistanceX", 2, 2, 0, 2, Q("5.872999 mm")),
    Sketcher.Constraint("DistanceY", 0, 2, 3, 2, Q("2.339801 mm")),
    Sketcher.Constraint("DistanceY", 0, 2, -1, 1, Q("12.245742 mm")),
    Sketcher.Constraint("DistanceX", -1, 1, 2, 2, Q("31.532119 mm")),
])
pad15 = doc.addObject("PartDesign::Pad", "Pad014")
body15.addObject(pad15)
pad15.Profile = sketch15
pad15.Length = 40
body16 = doc.addObject("PartDesign::Body", "Body015")

# Sketch on XY plane
sketch16 = doc.addObject("Sketcher::SketchObject", "Sketch015")
body16.addObject(sketch16)
sketch16.AttachmentSupport = (doc.getObject("XY_Plane015"), [""])
sketch16.MapMode = "FlatFace"
sketch16.AttachmentOffset = App.Placement(V(0, 0, -20), App.Rotation())
sketch16.addGeometry([
    Part.LineSegment(V(37.7, -12.3, 0), V(43.5, -14.3, 0)),
    Part.LineSegment(V(43.5, -14.3, 0), V(44.8, -9.3, 0)),
    Part.LineSegment(V(44.8, -9.3, 0), V(38.8, -8.2, 0)),
    Part.LineSegment(V(38.8, -8.2, 0), V(37.7, -12.3, 0)),
], False)
sketch16.addConstraint([
    Sketcher.Constraint("Coincident", 0, 2, 1, 1),
    Sketcher.Constraint("Coincident", 1, 2, 2, 1),
    Sketcher.Constraint("Coincident", 2, 2, 3, 1),
    Sketcher.Constraint("Coincident", 3, 2, 0, 1),
    Sketcher.Constraint("Parallel", 1, 3),
    Sketcher.Constraint("Equal", 0, 2),
    Sketcher.Constraint("Angle", 1, Q("75 deg")),
    Sketcher.Constraint("Distance", 1, Q("5.2 mm")),
    Sketcher.Constraint("DistanceY", 1, 2, 2, 2, Q("1.130702 mm")),
    Sketcher.Constraint("DistanceX", -1, 1, 0, 2, Q("43.469881 mm")),
    Sketcher.Constraint("DistanceY", 2, 2, -1, 1, Q("8.185921 mm")),
    Sketcher.Constraint("DistanceX", 3, 2, 0, 2, Q("5.734528 mm")),
])
pad16 = doc.addObject("PartDesign::Pad", "Pad015")
body16.addObject(pad16)
pad16.Profile = sketch16
pad16.Length = 40

doc.recompute()
